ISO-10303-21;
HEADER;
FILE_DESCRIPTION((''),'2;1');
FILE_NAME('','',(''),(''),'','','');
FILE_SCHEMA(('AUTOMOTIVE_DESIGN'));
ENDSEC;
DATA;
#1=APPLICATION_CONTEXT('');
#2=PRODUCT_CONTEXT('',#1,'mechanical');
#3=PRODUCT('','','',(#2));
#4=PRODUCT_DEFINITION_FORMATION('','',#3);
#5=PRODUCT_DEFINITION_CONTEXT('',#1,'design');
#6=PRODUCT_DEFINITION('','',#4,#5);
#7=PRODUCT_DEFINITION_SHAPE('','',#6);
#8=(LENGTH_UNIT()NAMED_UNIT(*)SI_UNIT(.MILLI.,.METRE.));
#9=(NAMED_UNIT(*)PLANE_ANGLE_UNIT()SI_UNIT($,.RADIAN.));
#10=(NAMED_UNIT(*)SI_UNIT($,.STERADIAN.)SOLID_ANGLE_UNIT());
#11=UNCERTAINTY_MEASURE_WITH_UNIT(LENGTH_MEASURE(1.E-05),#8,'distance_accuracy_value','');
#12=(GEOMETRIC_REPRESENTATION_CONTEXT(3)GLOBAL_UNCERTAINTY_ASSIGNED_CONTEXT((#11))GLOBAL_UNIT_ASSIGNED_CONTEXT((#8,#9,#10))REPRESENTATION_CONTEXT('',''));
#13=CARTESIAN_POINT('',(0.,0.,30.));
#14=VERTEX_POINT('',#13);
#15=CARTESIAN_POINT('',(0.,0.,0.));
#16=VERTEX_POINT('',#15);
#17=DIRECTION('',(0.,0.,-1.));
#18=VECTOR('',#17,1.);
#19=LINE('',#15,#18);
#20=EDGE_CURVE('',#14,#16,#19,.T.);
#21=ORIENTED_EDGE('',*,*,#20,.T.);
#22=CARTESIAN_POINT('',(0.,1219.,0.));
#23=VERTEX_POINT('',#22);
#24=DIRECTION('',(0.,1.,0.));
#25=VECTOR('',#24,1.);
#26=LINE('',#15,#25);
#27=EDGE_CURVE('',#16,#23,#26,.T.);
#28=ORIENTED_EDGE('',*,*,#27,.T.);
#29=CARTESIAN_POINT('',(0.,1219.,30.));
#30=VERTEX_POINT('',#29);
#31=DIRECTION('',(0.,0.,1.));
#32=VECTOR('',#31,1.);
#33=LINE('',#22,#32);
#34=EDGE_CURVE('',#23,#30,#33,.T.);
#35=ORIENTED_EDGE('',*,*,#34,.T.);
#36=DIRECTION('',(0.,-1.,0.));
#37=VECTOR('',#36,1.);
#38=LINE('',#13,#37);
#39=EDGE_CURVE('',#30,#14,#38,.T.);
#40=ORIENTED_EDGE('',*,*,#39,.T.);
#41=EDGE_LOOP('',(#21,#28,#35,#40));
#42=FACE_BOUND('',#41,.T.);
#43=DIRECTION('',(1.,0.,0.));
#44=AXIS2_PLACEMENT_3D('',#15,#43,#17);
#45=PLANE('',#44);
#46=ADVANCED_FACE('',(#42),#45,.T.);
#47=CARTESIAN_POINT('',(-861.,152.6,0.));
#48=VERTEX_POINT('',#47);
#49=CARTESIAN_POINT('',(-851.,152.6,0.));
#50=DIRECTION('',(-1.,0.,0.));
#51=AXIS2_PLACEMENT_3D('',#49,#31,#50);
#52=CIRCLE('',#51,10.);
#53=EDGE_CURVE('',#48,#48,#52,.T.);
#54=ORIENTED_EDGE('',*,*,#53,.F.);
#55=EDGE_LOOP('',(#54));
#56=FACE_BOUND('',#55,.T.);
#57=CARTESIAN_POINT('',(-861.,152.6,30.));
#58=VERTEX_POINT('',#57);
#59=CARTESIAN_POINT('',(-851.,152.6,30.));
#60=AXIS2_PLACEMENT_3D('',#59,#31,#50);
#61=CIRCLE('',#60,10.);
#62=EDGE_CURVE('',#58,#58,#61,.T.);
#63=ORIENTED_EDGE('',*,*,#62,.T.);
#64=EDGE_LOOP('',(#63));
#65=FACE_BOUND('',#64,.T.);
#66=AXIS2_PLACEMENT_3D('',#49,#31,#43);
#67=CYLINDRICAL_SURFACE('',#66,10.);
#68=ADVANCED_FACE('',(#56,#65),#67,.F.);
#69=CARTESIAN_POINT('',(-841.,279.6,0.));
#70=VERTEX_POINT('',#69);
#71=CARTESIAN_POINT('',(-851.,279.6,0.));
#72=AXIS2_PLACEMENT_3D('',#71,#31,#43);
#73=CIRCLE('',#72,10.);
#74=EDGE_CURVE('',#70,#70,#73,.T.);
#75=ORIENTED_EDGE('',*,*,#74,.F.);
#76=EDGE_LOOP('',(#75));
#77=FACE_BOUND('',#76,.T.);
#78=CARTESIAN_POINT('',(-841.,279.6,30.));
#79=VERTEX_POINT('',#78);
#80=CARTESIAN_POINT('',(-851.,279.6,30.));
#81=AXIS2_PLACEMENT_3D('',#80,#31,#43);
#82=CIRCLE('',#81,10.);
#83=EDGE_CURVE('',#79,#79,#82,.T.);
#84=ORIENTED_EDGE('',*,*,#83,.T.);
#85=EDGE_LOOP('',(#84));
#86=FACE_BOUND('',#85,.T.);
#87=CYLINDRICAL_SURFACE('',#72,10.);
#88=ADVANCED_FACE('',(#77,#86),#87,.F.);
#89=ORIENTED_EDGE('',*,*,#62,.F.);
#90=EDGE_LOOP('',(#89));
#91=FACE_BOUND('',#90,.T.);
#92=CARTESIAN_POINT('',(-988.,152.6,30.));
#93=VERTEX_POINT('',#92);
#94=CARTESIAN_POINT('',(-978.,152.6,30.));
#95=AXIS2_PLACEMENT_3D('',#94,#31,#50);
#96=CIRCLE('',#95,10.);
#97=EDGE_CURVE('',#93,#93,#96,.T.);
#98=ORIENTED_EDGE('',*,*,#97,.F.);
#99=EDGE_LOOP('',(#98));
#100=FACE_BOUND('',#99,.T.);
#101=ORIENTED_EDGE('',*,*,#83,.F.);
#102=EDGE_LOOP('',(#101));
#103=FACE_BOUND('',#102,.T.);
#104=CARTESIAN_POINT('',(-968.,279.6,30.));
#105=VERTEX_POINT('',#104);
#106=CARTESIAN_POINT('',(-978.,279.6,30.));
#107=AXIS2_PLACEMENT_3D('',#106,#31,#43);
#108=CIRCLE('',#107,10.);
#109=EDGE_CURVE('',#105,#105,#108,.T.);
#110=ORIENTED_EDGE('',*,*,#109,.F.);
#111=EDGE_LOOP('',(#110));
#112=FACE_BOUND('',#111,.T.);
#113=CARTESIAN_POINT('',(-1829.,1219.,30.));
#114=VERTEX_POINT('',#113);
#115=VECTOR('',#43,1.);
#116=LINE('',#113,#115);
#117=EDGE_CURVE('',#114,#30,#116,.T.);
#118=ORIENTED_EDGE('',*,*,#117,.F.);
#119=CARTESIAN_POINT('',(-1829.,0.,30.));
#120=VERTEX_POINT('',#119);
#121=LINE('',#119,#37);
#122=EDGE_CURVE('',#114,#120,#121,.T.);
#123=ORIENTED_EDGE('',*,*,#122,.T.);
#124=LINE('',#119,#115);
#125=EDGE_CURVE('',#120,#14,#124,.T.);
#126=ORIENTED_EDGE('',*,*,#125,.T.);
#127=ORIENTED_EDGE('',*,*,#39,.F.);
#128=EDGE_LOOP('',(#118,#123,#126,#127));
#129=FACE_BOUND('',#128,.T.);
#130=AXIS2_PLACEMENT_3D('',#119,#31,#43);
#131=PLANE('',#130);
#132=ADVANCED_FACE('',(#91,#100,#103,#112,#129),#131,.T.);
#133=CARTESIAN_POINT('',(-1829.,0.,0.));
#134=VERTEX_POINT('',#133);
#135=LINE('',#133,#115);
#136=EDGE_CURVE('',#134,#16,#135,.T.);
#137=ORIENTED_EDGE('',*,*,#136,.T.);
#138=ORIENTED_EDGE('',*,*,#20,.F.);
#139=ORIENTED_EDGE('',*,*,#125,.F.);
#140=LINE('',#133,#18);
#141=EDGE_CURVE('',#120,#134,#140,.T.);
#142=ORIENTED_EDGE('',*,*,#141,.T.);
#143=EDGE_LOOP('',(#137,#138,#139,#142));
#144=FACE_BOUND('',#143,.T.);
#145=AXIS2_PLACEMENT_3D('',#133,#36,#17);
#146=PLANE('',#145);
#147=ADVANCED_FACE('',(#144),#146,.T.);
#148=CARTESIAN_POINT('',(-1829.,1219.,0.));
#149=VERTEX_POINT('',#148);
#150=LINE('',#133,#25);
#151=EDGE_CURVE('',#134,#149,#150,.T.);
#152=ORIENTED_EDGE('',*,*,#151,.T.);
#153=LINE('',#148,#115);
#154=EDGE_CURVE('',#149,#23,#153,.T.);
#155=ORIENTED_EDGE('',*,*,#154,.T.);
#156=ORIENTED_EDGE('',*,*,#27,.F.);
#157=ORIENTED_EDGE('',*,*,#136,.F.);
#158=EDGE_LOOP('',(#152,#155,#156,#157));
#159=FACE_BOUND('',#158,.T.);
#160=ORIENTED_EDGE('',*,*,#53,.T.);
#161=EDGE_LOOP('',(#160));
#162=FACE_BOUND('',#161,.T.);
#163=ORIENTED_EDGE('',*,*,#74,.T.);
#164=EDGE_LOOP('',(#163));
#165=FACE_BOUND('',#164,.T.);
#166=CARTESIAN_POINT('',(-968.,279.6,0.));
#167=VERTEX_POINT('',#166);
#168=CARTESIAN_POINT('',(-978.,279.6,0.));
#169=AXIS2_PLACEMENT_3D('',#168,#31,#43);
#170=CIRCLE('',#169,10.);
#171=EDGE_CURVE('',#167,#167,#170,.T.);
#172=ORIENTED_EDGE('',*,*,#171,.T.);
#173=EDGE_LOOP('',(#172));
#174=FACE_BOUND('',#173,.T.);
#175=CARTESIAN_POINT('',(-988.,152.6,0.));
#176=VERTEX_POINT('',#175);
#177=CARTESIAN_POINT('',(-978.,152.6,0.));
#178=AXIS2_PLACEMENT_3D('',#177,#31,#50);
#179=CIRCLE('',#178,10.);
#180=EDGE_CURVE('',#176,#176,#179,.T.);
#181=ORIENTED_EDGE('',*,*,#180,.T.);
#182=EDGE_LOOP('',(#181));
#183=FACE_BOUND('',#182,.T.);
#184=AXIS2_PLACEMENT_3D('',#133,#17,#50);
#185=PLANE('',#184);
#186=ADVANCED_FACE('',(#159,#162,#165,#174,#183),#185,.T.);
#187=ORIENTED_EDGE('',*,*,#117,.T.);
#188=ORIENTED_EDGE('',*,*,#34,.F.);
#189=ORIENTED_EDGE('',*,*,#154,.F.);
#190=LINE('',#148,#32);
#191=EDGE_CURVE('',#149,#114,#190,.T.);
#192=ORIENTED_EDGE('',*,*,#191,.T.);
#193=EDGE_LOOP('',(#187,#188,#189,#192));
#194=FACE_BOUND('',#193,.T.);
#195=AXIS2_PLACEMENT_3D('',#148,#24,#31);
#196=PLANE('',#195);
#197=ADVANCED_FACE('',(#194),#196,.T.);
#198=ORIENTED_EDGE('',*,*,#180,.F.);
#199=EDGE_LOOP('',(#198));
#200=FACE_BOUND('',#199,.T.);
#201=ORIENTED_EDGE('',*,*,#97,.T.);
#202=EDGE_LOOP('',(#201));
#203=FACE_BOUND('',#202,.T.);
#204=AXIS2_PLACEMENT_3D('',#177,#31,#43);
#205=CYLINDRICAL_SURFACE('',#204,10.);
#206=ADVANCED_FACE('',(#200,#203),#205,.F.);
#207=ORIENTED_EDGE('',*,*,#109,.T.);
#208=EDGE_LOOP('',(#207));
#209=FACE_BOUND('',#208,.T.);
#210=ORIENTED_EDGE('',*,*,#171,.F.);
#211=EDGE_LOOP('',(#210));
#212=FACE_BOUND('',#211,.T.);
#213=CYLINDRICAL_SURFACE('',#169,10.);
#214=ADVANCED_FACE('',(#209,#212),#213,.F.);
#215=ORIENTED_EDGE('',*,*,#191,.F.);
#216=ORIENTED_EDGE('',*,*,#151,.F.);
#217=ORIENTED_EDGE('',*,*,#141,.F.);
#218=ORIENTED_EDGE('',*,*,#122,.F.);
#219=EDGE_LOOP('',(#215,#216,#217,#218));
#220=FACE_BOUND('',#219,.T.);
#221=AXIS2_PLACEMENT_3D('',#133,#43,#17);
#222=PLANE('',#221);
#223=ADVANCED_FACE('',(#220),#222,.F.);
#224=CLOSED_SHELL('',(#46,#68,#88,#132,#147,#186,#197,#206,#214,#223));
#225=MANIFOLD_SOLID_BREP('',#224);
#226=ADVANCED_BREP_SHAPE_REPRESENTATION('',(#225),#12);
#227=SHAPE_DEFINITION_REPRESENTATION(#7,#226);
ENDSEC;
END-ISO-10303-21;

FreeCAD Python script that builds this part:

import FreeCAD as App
import Part
import Sketcher


def add_polygon(sketch, points):
    """Adds a closed chain of lines whose ends are joined by coincident constraints."""
    first, n = sketch.GeometryCount, len(points)
    for a, b in zip(points, points[1:] + points[:1]):
        sketch.addGeometry(Part.LineSegment(App.Vector(*a, 0), App.Vector(*b, 0)), False)
    for i in range(n):
        sketch.addConstraint(Sketcher.Constraint("Coincident", first + i, 2, first + (i + 1) % n, 1))

doc = App.newDocument("Part")
body = doc.addObject("PartDesign::Body", "Body")

sketch1 = body.newObject("Sketcher::SketchObject", "Sketch")
sketch1.AttachmentSupport = (doc.getObject("YZ_Plane"), [""])
sketch1.MapMode = "FlatFace"
add_polygon(sketch1, [(1219, 30), (0, 30), (0, 0), (1219, 0)])
sketch1.addConstraint([
    Sketcher.Constraint("Horizontal", 0),
    Sketcher.Constraint("Vertical", 1),
    Sketcher.Constraint("Horizontal", 2),
    Sketcher.Constraint("Vertical", 3),
    Sketcher.Constraint("Coincident", 1, 2, -1, 1),
    Sketcher.Constraint("DistanceX", 0, 2, 0, 1, 1219.0),
    Sketcher.Constraint("DistanceY", 1, 2, 1, 1, 30.0),
])
pad1 = body.newObject("PartDesign::Pad", "Pad")
pad1.Profile = sketch1
pad1.Length = 1829
pad1.Reversed = True

sketch2 = body.newObject("Sketcher::SketchObject", "Sketch001")
sketch2.AttachmentSupport = (doc.getObject("XY_Plane"), [""])
sketch2.MapMode = "FlatFace"
sketch2.AttachmentOffset = App.Placement(App.Vector(0, 0, 30), App.Rotation())
sketch2.addGeometry([
    Part.Circle(App.Vector(-978, 280, 0), App.Vector(0, 0, 1), 10),
    Part.Circle(App.Vector(-851, 280, 0), App.Vector(0, 0, 1), 10),
    Part.Circle(App.Vector(-851, 153, 0), App.Vector(0, 0, 1), 10),
    Part.Circle(App.Vector(-978, 153, 0), App.Vector(0, 0, 1), 10),
], False)
sketch2.addConstraint([
    Sketcher.Constraint("Equal", 0, 1),
    Sketcher.Constraint("Equal", 1, 2),
    Sketcher.Constraint("Equal", 2, 3),
    Sketcher.Constraint("Horizontal", 0, 3, 1, 3),
    Sketcher.Constraint("Horizontal", 2, 3, 3, 3),
    Sketcher.Constraint("Vertical", 1, 3, 2, 3),
    Sketcher.Constraint("Vertical", 0, 3, 3, 3),
    Sketcher.Constraint("Diameter", 0, 20.0),
    Sketcher.Constraint("DistanceX", 0, 3, -1, 1, 978.0),
    Sketcher.Constraint("DistanceX", 1, 3, -1, 1, 851.0),
    Sketcher.Constraint("DistanceY", 2, 3, 1, 3, 127.0),
    Sketcher.Constraint("DistanceY", -1, 1, 0, 3, 279.6),
])
pocket1 = body.newObject("PartDesign::Pocket", "Pocket")
pocket1.Profile = sketch2
pocket1.Type = "ThroughAll"

doc.recompute()
